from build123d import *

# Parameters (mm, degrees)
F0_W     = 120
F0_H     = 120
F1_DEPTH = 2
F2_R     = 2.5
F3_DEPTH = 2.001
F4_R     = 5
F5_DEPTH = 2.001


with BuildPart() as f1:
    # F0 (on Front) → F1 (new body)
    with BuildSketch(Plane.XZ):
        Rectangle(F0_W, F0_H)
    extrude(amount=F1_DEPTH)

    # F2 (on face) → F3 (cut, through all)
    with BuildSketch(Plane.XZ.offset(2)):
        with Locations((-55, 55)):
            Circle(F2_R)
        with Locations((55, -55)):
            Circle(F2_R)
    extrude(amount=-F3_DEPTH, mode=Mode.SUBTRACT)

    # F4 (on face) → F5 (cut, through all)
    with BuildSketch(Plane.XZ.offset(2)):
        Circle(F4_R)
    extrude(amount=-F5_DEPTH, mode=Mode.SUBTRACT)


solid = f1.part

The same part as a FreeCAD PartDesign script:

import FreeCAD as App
import Part
import Sketcher
Q = App.Units.Quantity


def add_polygon(sketch, points):
    """Adds a closed chain of lines whose ends are joined by coincident constraints."""
    first, n = sketch.GeometryCount, len(points)
    for a, b in zip(points, points[1:] + points[:1]):
        sketch.addGeometry(Part.LineSegment(App.Vector(*a, 0), App.Vector(*b, 0)), False)
    for i in range(n):
        sketch.addConstraint(Sketcher.Constraint("Coincident", first + i, 2, first + (i + 1) % n, 1))

doc = App.newDocument("Part")
params = doc.addObject("Spreadsheet::Sheet", "Params")
for row, (alias, value) in enumerate([
    ("sketch1_width", "120 mm"),
    ("pad1_length", "2 mm"),
    ("sketch2_diameter", "5 mm"),
    ("sketch3_diameter", "10 mm"),
], start=1):
    params.set(f"A{row}", alias)
    params.set(f"B{row}", "=" + value)
    params.setAlias(f"B{row}", alias)

body = doc.addObject("PartDesign::Body", "Body")

sketch1 = body.newObject("Sketcher::SketchObject", "Sketch")
sketch1.AttachmentSupport = (doc.getObject("XZ_Plane"), [""])
sketch1.MapMode = "FlatFace"
add_polygon(sketch1, [(-60, 60), (-60, -60), (60, -60), (60, 60)])
sketch1.addConstraint(Sketcher.Constraint("Vertical", 0))
sketch1.addConstraint(Sketcher.Constraint("Horizontal", 1))
sketch1.addConstraint(Sketcher.Constraint("Vertical", 2))
sketch1.addConstraint(Sketcher.Constraint("Horizontal", 3))
sketch1.addConstraint(Sketcher.Constraint("Symmetric", 0, 2, 2, 2, -1, 1))
sketch1.addConstraint(Sketcher.Constraint("Equal", 3, 0))
sketch1.addConstraint(Sketcher.Constraint("DistanceX", 1, 1, 1, 2, Q("120 mm")))
sketch1.setExpression("Constraints[10]", "Params.sketch1_width")
pad1 = body.newObject("PartDesign::Pad", "Pad")
pad1.Profile = sketch1
pad1.setExpression("Length", "Params.pad1_length")

sketch2 = body.newObject("Sketcher::SketchObject", "Sketch001")
sketch2.AttachmentSupport = (doc.getObject("XZ_Plane"), [""])
sketch2.MapMode = "FlatFace"
sketch2.AttachmentOffset = App.Placement(App.Vector(0, 0, 2), App.Rotation())
sketch2.addGeometry(Part.Circle(App.Vector(-55, 55, 0), App.Vector(0, 0, 1), 2.5), False)
sketch2.addGeometry(Part.Circle(App.Vector(55, -55, 0), App.Vector(0, 0, 1), 2.5), False)
sketch2.addConstraint(Sketcher.Constraint("Equal", 0, 1))
sketch2.addConstraint(Sketcher.Constraint("Symmetric", 0, 3, 1, 3, -1, 1))
sketch2.addConstraint(Sketcher.Constraint("Diameter", 0, Q("5 mm")))
sketch2.addConstraint(Sketcher.Constraint("DistanceX", 0, 3, -1, 1, Q("55 mm")))
sketch2.addConstraint(Sketcher.Constraint("DistanceY", -1, 1, 0, 3, Q("55 mm")))
sketch2.setExpression("Constraints[2]", "Params.sketch2_diameter")
pocket1 = body.newObject("PartDesign::Pocket", "Pocket")
pocket1.Profile = sketch2
pocket1.Type = "ThroughAll"

sketch3 = body.newObject("Sketcher::SketchObject", "Sketch002")
sketch3.AttachmentSupport = (doc.getObject("XZ_Plane"), [""])
sketch3.MapMode = "FlatFace"
sketch3.AttachmentOffset = App.Placement(App.Vector(0, 0, 2), App.Rotation())
sketch3.addGeometry(Part.Circle(App.Vector(0, 0, 0), App.Vector(0, 0, 1), 5), False)
sketch3.addConstraint(Sketcher.Constraint("Coincident", 0, 3, -1, 1))
sketch3.addConstraint(Sketcher.Constraint("Diameter", 0, Q("10 mm")))
sketch3.setExpression("Constraints[1]", "Params.sketch3_diameter")
pocket2 = body.newObject("PartDesign::Pocket", "Pocket001")
pocket2.Profile = sketch3
pocket2.Type = "ThroughAll"

doc.recompute()
